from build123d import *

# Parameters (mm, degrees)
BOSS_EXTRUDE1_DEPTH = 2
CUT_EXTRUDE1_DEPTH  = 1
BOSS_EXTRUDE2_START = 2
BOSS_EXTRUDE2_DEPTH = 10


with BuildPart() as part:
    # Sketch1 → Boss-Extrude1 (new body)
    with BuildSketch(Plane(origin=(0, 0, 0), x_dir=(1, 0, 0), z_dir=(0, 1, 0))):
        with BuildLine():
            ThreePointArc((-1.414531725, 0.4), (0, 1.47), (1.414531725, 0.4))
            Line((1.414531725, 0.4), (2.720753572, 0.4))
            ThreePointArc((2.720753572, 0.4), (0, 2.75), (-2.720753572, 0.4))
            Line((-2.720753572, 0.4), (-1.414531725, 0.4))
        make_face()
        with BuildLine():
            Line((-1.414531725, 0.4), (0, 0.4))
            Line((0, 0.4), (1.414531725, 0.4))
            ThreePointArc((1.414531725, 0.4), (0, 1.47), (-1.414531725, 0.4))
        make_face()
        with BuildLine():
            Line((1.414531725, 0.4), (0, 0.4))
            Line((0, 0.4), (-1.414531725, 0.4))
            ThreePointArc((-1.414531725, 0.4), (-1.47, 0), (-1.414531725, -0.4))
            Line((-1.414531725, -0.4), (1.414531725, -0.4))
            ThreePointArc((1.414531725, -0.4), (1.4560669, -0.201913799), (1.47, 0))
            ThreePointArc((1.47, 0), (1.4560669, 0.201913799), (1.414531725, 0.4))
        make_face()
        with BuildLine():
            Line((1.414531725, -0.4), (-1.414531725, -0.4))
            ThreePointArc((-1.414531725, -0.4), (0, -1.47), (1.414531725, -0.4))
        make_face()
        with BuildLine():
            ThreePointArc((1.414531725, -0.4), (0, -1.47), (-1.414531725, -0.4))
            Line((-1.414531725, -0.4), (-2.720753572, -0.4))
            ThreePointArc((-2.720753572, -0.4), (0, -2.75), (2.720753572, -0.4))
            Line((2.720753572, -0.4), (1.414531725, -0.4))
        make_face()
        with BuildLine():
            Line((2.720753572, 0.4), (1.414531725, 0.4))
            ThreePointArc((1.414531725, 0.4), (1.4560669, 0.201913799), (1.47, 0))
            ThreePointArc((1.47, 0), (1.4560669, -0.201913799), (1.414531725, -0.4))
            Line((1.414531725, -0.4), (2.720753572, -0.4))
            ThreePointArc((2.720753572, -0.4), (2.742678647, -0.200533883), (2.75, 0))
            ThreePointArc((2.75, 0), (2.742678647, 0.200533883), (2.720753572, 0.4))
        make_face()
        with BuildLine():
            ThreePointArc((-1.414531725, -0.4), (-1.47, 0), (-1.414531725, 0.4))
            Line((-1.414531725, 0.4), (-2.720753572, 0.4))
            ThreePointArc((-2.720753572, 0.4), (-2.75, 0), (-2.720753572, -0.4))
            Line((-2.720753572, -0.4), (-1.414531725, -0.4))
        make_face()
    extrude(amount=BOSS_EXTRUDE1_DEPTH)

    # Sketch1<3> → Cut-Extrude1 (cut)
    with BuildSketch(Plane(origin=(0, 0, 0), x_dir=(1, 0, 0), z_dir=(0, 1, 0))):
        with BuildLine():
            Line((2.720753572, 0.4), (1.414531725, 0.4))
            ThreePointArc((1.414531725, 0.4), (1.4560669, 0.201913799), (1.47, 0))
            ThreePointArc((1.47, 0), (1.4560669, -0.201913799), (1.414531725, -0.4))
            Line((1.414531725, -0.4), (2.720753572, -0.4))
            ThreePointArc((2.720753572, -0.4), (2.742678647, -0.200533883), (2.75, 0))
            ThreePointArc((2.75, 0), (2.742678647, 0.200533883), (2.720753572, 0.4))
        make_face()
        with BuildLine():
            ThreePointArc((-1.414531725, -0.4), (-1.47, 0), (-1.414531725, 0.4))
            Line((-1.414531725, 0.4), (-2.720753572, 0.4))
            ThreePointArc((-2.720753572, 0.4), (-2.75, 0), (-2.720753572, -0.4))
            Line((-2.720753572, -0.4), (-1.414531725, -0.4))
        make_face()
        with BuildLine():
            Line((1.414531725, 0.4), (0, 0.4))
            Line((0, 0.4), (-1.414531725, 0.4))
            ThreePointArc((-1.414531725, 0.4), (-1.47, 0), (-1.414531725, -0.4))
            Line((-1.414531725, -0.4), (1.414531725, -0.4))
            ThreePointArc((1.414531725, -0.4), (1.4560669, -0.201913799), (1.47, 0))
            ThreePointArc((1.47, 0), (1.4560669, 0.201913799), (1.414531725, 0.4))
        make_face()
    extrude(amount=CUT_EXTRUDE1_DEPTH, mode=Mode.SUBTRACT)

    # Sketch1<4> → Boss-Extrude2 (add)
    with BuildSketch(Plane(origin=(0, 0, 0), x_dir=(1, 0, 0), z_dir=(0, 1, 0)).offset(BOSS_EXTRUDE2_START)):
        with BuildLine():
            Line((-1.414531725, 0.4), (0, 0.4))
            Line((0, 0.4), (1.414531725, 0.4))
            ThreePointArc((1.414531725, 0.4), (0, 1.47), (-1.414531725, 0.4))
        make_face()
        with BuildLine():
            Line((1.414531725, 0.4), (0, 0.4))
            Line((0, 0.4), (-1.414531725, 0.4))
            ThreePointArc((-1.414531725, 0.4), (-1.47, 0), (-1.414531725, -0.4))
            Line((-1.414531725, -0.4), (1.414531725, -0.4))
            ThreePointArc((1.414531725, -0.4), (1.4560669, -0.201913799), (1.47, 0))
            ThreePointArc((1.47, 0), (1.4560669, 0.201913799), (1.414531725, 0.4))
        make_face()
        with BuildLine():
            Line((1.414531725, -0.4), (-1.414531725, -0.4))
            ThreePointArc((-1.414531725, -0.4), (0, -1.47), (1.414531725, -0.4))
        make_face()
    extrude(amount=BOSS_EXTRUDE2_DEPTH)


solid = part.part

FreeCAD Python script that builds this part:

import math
import FreeCAD as App
import Part
import Sketcher
from FreeCAD import Vector
Q = App.Units.Quantity

doc = App.newDocument("Part")
body = doc.addObject("PartDesign::Body", "Body")

sketch1 = body.newObject("Sketcher::SketchObject", "Sketch")
sketch1.AttachmentSupport = (doc.getObject("XZ_Plane"), [""])
sketch1.MapMode = "FlatFace"
sketch1.addGeometry([
    Part.ArcOfCircle(Part.Circle(Vector(0, 0, 0), Vector(0, 0, 1), 2.75), math.radians(-172), math.radians(-8)),
    Part.ArcOfCircle(Part.Circle(Vector(0, 0, 0), Vector(0, 0, 1), 2.75), math.radians(171.64), math.radians(188.36)),
    Part.ArcOfCircle(Part.Circle(Vector(0, 0, 0), Vector(0, 0, 1), 2.75), math.radians(8), math.radians(172)),
    Part.ArcOfCircle(Part.Circle(Vector(0, 0, 0), Vector(0, 0, 1), 2.75), math.radians(0), math.radians(8.36)),
    Part.ArcOfCircle(Part.Circle(Vector(0, 0, 0), Vector(0, 0, 1), 2.75), math.radians(-8.36), math.radians(0)),
], False)
sketch1.addConstraint([
    Sketcher.Constraint("Tangent", 0, 1, 1, 2),
    Sketcher.Constraint("Tangent", 1, 1, 2, 2),
    Sketcher.Constraint("Tangent", 2, 1, 3, 2),
    Sketcher.Constraint("Tangent", 3, 1, 4, 2),
    Sketcher.Constraint("Tangent", 4, 1, 0, 2),
    Sketcher.Constraint("Coincident", 0, 3, -1, 1),
    Sketcher.Constraint("Coincident", 2, 3, -1, 1),
    Sketcher.Constraint("PointOnObject", 3, 1, -1),
    Sketcher.Constraint("Horizontal", 1, 1, 2, 1),
    Sketcher.Constraint("Horizontal", 0, 1, 4, 1),
    Sketcher.Constraint("Vertical", 0, 1, 1, 1),
    Sketcher.Constraint("Radius", 0, Q("2.75 mm")),
    Sketcher.Constraint("DistanceY", 0, 1, -1, 1, Q("0.4 mm")),
])
pad1 = body.newObject("PartDesign::Pad", "Pad")
pad1.Profile = sketch1
pad1.Length = 2
pad1.Reversed = True

sketch2 = body.newObject("Sketcher::SketchObject", "Sketch001")
sketch2.AttachmentSupport = (doc.getObject("XZ_Plane"), [""])
sketch2.MapMode = "FlatFace"
sketch2.addGeometry([
    Part.LineSegment(Vector(2.72, -0.4, 0), Vector(-2.72, -0.4, 0)),
    Part.ArcOfCircle(Part.Circle(Vector(0, 0, 0), Vector(0, 0, 1), 2.75), math.radians(171.64), math.radians(188.36)),
    Part.LineSegment(Vector(-2.72, 0.4, 0), Vector(2.72, 0.4, 0)),
    Part.ArcOfCircle(Part.Circle(Vector(0, 0, 0), Vector(0, 0, 1), 2.75), math.radians(0), math.radians(8.36)),
    Part.ArcOfCircle(Part.Circle(Vector(0, 0, 0), Vector(0, 0, 1), 2.75), math.radians(-8.36), math.radians(0)),
], False)
sketch2.addConstraint([
    Sketcher.Constraint("Coincident", 0, 2, 1, 2),
    Sketcher.Constraint("Coincident", 1, 1, 2, 1),
    Sketcher.Constraint("Coincident", 2, 2, 3, 2),
    Sketcher.Constraint("Tangent", 3, 1, 4, 2),
    Sketcher.Constraint("Coincident", 4, 1, 0, 1),
    Sketcher.Constraint("Horizontal", 0),
    Sketcher.Constraint("Horizontal", 2),
    Sketcher.Constraint("Coincident", 1, 3, -1, 1),
    Sketcher.Constraint("Coincident", 3, 3, -1, 1),
    Sketcher.Constraint("Equal", 1, 3),
    Sketcher.Constraint("Equal", 3, 4),
    Sketcher.Constraint("PointOnObject", 3, 1, -1),
    Sketcher.Constraint("Vertical", 0, 2, 1, 1),
    Sketcher.Constraint("Radius", 1, Q("2.75 mm")),
    Sketcher.Constraint("DistanceY", 0, 2, -1, 1, Q("0.4 mm")),
])
pocket1 = body.newObject("PartDesign::Pocket", "Pocket")
pocket1.Profile = sketch2
pocket1.Length = 1

sketch3 = body.newObject("Sketcher::SketchObject", "Sketch002")
sketch3.AttachmentSupport = (doc.getObject("XZ_Plane"), [""])
sketch3.MapMode = "FlatFace"
sketch3.AttachmentOffset = App.Placement(Vector(0, 0, -2), App.Rotation())
sketch3.addGeometry([
    Part.ArcOfCircle(Part.Circle(Vector(0, 0, 0), Vector(0, 0, 1), 1.47), math.radians(-164), math.radians(-16)),
    Part.ArcOfCircle(Part.Circle(Vector(0, 0, 0), Vector(0, 0, 1), 1.47), math.radians(164), math.radians(196)),
    Part.ArcOfCircle(Part.Circle(Vector(0, 0, 0), Vector(0, 0, 1), 1.47), math.radians(16), math.radians(164)),
    Part.ArcOfCircle(Part.Circle(Vector(0, 0, 0), Vector(0, 0, 1), 1.47), math.radians(0), math.radians(15.79)),
    Part.ArcOfCircle(Part.Circle(Vector(0, 0, 0), Vector(0, 0, 1), 1.47), math.radians(-15.79), math.radians(0)),
], False)
sketch3.addConstraint([
    Sketcher.Constraint("Tangent", 0, 1, 1, 2),
    Sketcher.Constraint("Tangent", 1, 1, 2, 2),
    Sketcher.Constraint("Tangent", 2, 1, 3, 2),
    Sketcher.Constraint("Tangent", 3, 1, 4, 2),
    Sketcher.Constraint("Tangent", 4, 1, 0, 2),
    Sketcher.Constraint("Coincident", 0, 3, -1, 1),
    Sketcher.Constraint("Coincident", 2, 3, -1, 1),
    Sketcher.Constraint("PointOnObject", 3, 1, -1),
    Sketcher.Constraint("Horizontal", 1, 1, 2, 1),
    Sketcher.Constraint("Horizontal", 0, 1, 4, 1),
    Sketcher.Constraint("Vertical", 0, 1, 1, 1),
    Sketcher.Constraint("Radius", 0, Q("1.47 mm")),
    Sketcher.Constraint("DistanceY", 0, 1, -1, 1, Q("0.4 mm")),
])
pad2 = body.newObject("PartDesign::Pad", "Pad001")
pad2.Profile = sketch3
pad2.Length = 10
pad2.Reversed = True

doc.recompute()
